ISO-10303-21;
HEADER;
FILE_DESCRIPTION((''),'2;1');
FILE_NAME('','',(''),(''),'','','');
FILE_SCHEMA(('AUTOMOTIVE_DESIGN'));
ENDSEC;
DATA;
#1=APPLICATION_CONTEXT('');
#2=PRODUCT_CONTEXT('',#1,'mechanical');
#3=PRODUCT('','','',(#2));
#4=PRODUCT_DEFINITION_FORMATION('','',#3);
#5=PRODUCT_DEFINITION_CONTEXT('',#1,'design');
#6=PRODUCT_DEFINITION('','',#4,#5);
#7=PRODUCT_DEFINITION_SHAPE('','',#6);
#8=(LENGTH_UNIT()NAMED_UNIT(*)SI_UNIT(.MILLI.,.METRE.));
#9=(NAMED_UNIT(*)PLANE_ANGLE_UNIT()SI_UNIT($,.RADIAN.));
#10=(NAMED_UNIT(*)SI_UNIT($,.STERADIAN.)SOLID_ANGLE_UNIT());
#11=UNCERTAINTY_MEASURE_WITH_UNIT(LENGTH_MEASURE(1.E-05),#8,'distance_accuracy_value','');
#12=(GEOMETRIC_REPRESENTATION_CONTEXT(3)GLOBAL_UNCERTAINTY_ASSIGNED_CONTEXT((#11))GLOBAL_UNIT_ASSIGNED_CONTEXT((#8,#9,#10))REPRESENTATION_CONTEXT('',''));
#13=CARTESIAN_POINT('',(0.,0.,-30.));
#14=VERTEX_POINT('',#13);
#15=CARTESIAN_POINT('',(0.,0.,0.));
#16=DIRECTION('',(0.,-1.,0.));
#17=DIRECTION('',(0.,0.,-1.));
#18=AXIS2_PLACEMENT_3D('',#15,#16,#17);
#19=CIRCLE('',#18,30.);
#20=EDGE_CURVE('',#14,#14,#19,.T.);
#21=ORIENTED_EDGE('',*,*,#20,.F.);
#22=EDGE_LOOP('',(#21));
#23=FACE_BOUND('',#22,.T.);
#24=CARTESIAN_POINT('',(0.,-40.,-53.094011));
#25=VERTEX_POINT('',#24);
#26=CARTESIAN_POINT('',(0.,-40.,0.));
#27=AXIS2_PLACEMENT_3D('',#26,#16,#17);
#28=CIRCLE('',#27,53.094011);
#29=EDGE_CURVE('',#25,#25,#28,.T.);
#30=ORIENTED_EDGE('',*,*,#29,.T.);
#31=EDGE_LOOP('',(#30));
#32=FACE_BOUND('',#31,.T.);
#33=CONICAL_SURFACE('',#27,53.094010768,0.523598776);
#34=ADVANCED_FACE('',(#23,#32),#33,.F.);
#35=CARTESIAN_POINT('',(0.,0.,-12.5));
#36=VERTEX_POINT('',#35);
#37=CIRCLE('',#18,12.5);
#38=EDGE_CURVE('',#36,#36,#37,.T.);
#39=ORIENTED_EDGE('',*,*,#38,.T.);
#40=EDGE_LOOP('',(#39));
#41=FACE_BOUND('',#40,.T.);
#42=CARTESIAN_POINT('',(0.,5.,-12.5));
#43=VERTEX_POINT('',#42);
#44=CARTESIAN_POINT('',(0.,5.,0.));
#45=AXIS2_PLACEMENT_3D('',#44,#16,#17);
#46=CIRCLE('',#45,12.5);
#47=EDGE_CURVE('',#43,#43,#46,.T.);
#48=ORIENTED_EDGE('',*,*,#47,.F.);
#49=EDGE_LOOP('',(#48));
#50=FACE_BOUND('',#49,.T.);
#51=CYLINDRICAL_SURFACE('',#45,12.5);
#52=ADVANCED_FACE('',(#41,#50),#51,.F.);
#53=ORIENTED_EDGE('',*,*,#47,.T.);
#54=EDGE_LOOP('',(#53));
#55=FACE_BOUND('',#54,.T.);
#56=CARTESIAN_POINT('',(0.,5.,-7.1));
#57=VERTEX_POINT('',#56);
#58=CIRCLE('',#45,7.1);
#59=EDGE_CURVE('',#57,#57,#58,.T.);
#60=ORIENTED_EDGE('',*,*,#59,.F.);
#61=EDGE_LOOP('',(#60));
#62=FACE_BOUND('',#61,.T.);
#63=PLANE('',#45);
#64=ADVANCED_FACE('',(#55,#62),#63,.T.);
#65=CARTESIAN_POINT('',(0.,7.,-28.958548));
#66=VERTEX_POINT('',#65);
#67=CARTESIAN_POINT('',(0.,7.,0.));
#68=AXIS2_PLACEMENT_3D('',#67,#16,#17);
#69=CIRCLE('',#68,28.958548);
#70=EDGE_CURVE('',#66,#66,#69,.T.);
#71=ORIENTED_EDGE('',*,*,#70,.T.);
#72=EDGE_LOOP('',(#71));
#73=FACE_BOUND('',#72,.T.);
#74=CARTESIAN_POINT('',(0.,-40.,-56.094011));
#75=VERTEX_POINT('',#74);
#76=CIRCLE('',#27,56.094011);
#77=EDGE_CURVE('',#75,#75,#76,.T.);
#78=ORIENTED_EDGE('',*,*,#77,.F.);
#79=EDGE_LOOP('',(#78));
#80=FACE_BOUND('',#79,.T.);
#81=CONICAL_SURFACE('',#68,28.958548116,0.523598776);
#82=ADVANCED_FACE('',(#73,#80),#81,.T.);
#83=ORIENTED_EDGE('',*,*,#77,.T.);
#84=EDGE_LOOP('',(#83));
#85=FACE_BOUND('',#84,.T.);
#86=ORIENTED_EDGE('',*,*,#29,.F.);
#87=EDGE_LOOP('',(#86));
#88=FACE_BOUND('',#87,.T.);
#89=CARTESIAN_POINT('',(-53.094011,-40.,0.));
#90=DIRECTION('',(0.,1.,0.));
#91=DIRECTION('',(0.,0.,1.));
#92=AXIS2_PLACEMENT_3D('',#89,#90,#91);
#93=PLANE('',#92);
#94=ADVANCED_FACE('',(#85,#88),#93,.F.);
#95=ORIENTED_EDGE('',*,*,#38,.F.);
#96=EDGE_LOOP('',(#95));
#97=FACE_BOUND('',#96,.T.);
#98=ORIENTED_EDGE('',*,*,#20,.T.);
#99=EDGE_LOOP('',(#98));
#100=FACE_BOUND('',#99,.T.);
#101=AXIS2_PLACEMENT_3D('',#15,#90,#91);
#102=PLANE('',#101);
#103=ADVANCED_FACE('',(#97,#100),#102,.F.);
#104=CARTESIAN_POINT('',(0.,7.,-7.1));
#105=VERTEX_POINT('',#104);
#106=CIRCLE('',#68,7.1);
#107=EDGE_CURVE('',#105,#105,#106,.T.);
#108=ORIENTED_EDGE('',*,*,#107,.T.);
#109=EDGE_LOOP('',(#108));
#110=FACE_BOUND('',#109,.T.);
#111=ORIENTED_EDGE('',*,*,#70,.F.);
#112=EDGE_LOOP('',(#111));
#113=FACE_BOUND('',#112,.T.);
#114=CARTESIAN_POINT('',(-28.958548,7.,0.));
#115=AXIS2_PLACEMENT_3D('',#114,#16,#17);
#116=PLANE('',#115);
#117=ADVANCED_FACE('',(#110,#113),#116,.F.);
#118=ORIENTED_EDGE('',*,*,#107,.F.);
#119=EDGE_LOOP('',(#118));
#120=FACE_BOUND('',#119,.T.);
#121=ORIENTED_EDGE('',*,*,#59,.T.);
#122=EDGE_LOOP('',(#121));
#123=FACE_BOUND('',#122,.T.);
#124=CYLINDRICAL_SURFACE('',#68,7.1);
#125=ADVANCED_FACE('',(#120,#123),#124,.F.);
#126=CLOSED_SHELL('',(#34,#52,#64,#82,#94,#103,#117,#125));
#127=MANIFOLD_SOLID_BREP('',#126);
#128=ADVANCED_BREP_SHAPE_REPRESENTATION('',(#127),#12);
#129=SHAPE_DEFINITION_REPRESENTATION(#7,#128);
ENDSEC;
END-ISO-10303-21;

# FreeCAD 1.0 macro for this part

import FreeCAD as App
import Part
import Sketcher

V = App.Vector
Q = App.Units.Quantity

doc = App.newDocument("Part")
body = doc.addObject("PartDesign::Body", "Body")

sketch1 = doc.addObject("Sketcher::SketchObject", "Sketch")
body.addObject(sketch1)
sketch1.AttachmentSupport = (doc.XY_Plane, [""])
sketch1.MapMode = "FlatFace"
sketch1.addGeometry(Part.LineSegment(V(-30, 0, 0), V(0, 0, 0)), False)
sketch1.addGeometry(Part.LineSegment(V(0, 0, 0), V(0, 7, 0)), False)
sketch1.addGeometry(Part.LineSegment(V(0, 7, 0), V(-28.958548, 7, 0)), False)
sketch1.addGeometry(Part.LineSegment(V(-28.958548, 7, 0), V(-56.094011, -40, 0)), False)
sketch1.addGeometry(Part.LineSegment(V(-56.094011, -40, 0), V(-53.094011, -40, 0)), False)
sketch1.addGeometry(Part.LineSegment(V(-53.094011, -40, 0), V(-30, 0, 0)), False)
sketch1.addConstraint(Sketcher.Constraint("Coincident", 0, 2, 1, 1))
sketch1.addConstraint(Sketcher.Constraint("Coincident", 1, 2, 2, 1))
sketch1.addConstraint(Sketcher.Constraint("Coincident", 2, 2, 3, 1))
sketch1.addConstraint(Sketcher.Constraint("Coincident", 3, 2, 4, 1))
sketch1.addConstraint(Sketcher.Constraint("Coincident", 4, 2, 5, 1))
sketch1.addConstraint(Sketcher.Constraint("Coincident", 5, 2, 0, 1))
sketch1.addConstraint(Sketcher.Constraint("Horizontal", 0))
sketch1.addConstraint(Sketcher.Constraint("Vertical", 1))
sketch1.addConstraint(Sketcher.Constraint("Horizontal", 2))
sketch1.addConstraint(Sketcher.Constraint("Horizontal", 4))
sketch1.addConstraint(Sketcher.Constraint("Coincident", 0, 2, -1, 1))
sketch1.addConstraint(Sketcher.Constraint("Parallel", 3, 5))
sketch1.addConstraint(Sketcher.Constraint("DistanceX", 0, 1, 0, 2, Q("30 mm")))
sketch1.addConstraint(Sketcher.Constraint("DistanceX", 4, 1, 4, 2, Q("3 mm")))
sketch1.addConstraint(Sketcher.Constraint("DistanceY", 1, 1, 1, 2, Q("7 mm")))
sketch1.addConstraint(Sketcher.Constraint("Angle", 3, Q("-120 deg")))
sketch1.addConstraint(Sketcher.Constraint("DistanceY", 3, 2, -1, 1, Q("40 mm")))
revolution = doc.addObject("PartDesign::Revolution", "Revolution")
body.addObject(revolution)
revolution.Profile = sketch1
revolution.ReferenceAxis = (sketch1, ["V_Axis"])
revolution.Angle = 360

sketch2 = doc.addObject("Sketcher::SketchObject", "Sketch001")
body.addObject(sketch2)
sketch2.AttachmentSupport = (doc.XZ_Plane, [""])
sketch2.MapMode = "FlatFace"
sketch2.addGeometry(Part.Circle(V(0, 0, 0), V(0, 0, 1), 12.5), False)
sketch2.addConstraint(Sketcher.Constraint("Coincident", 0, 3, -1, 1))
sketch2.addConstraint(Sketcher.Constraint("Diameter", 0, Q("25 mm")))
pocket1 = doc.addObject("PartDesign::Pocket", "Pocket")
body.addObject(pocket1)
pocket1.Profile = sketch2
pocket1.Length = 5

sketch3 = doc.addObject("Sketcher::SketchObject", "Sketch002")
body.addObject(sketch3)
sketch3.AttachmentSupport = (doc.XZ_Plane, [""])
sketch3.MapMode = "FlatFace"
sketch3.AttachmentOffset = App.Placement(V(0, 0, -5), App.Rotation())
sketch3.addGeometry(Part.Circle(V(0, 0, 0), V(0, 0, 1), 7.1), False)
sketch3.addConstraint(Sketcher.Constraint("Coincident", 0, 3, -1, 1))
sketch3.addConstraint(Sketcher.Constraint("Diameter", 0, Q("14.2 mm")))
pocket2 = doc.addObject("PartDesign::Pocket", "Pocket001")
body.addObject(pocket2)
pocket2.Profile = sketch3
pocket2.Type = "ThroughAll"

doc.recompute()
